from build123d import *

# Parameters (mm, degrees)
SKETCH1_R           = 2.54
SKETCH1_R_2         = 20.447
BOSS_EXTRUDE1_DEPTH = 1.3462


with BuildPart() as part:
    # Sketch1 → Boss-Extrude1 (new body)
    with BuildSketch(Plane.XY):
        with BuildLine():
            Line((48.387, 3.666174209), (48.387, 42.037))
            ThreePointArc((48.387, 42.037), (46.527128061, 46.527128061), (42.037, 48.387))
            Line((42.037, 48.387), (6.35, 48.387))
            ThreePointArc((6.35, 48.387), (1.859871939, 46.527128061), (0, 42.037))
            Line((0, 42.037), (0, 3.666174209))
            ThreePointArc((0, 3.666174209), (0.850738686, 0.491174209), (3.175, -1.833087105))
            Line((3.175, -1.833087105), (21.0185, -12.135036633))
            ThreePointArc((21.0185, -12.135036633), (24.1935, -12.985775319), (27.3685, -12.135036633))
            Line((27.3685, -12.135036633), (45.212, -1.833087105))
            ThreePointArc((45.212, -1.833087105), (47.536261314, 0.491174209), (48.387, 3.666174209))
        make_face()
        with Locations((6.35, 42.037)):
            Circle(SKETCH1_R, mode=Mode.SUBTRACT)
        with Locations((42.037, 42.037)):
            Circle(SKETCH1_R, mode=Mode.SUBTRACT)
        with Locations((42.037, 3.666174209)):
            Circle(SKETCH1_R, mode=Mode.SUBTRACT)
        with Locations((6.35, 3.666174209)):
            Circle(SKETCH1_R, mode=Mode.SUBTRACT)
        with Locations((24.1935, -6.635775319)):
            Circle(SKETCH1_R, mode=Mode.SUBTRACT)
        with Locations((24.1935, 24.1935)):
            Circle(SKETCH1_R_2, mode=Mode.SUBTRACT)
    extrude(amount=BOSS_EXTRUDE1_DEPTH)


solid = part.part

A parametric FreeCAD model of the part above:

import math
import FreeCAD as App
import Part
import Sketcher

V = App.Vector
Q = App.Units.Quantity

doc = App.newDocument("Part")
body = doc.addObject("PartDesign::Body", "Body")

# Sketch on XY plane
sketch1 = doc.addObject("Sketcher::SketchObject", "Sketch")
body.addObject(sketch1)
sketch1.AttachmentSupport = (doc.XY_Plane, [""])
sketch1.MapMode = "FlatFace"
sketch1.addGeometry(Part.LineSegment(V(48.387, 3.666174, 0), V(48.387, 42.037, 0)), False)
sketch1.addGeometry(Part.ArcOfCircle(Part.Circle(V(42.037, 42.037, 0), V(0, 0, 1), 6.35), math.radians(0), math.radians(90)), False)
sketch1.addGeometry(Part.LineSegment(V(42.037, 48.387, 0), V(6.35, 48.387, 0)), False)
sketch1.addGeometry(Part.ArcOfCircle(Part.Circle(V(6.35, 42.037, 0), V(0, 0, 1), 6.35), math.radians(90), math.radians(180)), False)
sketch1.addGeometry(Part.LineSegment(V(0, 42.037, 0), V(0, 3.666174, 0)), False)
sketch1.addGeometry(Part.ArcOfCircle(Part.Circle(V(6.35, 3.666174, 0), V(0, 0, 1), 6.35), math.radians(180), math.radians(240)), False)
sketch1.addGeometry(Part.LineSegment(V(3.175, -1.833087, 0), V(21.0185, -12.135037, 0)), False)
sketch1.addGeometry(Part.ArcOfCircle(Part.Circle(V(24.1935, -6.635775, 0), V(0, 0, 1), 6.35), math.radians(-120), math.radians(-60)), False)
sketch1.addGeometry(Part.LineSegment(V(27.3685, -12.135037, 0), V(45.212, -1.833087, 0)), False)
sketch1.addGeometry(Part.ArcOfCircle(Part.Circle(V(42.037, 3.666174, 0), V(0, 0, 1), 6.35), math.radians(-60), math.radians(0)), False)
sketch1.addGeometry(Part.Circle(V(6.35, 3.666174, 0), V(0, 0, 1), 2.54), False)
sketch1.addGeometry(Part.Circle(V(24.1935, -6.635775, 0), V(0, 0, 1), 2.54), False)
sketch1.addGeometry(Part.Circle(V(42.037, 3.666174, 0), V(0, 0, 1), 2.54), False)
sketch1.addGeometry(Part.Circle(V(6.35, 42.037, 0), V(0, 0, 1), 2.54), False)
sketch1.addGeometry(Part.Circle(V(24.1935, 24.1935, 0), V(0, 0, 1), 20.447), False)
sketch1.addGeometry(Part.Circle(V(42.037, 42.037, 0), V(0, 0, 1), 2.54), False)
sketch1.addConstraint(Sketcher.Constraint("Tangent", 0, 2, 1, 1))
sketch1.addConstraint(Sketcher.Constraint("Tangent", 1, 2, 2, 1))
sketch1.addConstraint(Sketcher.Constraint("Tangent", 2, 2, 3, 1))
sketch1.addConstraint(Sketcher.Constraint("Tangent", 3, 2, 4, 1))
sketch1.addConstraint(Sketcher.Constraint("Tangent", 4, 2, 5, 1))
sketch1.addConstraint(Sketcher.Constraint("Tangent", 5, 2, 6, 1))
sketch1.addConstraint(Sketcher.Constraint("Tangent", 6, 2, 7, 1))
sketch1.addConstraint(Sketcher.Constraint("Tangent", 7, 2, 8, 1))
sketch1.addConstraint(Sketcher.Constraint("Tangent", 8, 2, 9, 1))
sketch1.addConstraint(Sketcher.Constraint("Tangent", 9, 2, 0, 1))
sketch1.addConstraint(Sketcher.Constraint("Vertical", 0))
sketch1.addConstraint(Sketcher.Constraint("Horizontal", 2))
sketch1.addConstraint(Sketcher.Constraint("Vertical", 4))
sketch1.addConstraint(Sketcher.Constraint("Coincident", 10, 3, 5, 3))
sketch1.addConstraint(Sketcher.Constraint("Coincident", 11, 3, 7, 3))
sketch1.addConstraint(Sketcher.Constraint("Coincident", 12, 3, 9, 3))
sketch1.addConstraint(Sketcher.Constraint("Coincident", 13, 3, 3, 3))
sketch1.addConstraint(Sketcher.Constraint("Coincident", 15, 3, 1, 3))
sketch1.addConstraint(Sketcher.Constraint("Equal", 1, 3))
sketch1.addConstraint(Sketcher.Constraint("Equal", 3, 5))
sketch1.addConstraint(Sketcher.Constraint("Equal", 5, 7))
sketch1.addConstraint(Sketcher.Constraint("Equal", 7, 9))
sketch1.addConstraint(Sketcher.Constraint("Equal", 10, 11))
sketch1.addConstraint(Sketcher.Constraint("Equal", 11, 12))
sketch1.addConstraint(Sketcher.Constraint("Equal", 12, 13))
sketch1.addConstraint(Sketcher.Constraint("Equal", 13, 15))
sketch1.addConstraint(Sketcher.Constraint("PointOnObject", 3, 2, -2))
sketch1.addConstraint(Sketcher.Constraint("Horizontal", 5, 3, 9, 3))
sketch1.addConstraint(Sketcher.Constraint("Horizontal", 6, 2, 7, 2))
sketch1.addConstraint(Sketcher.Constraint("Vertical", 11, 3, 14, 3))
sketch1.addConstraint(Sketcher.Constraint("Diameter", 10, Q("0.2 in")))
sketch1.addConstraint(Sketcher.Constraint("Diameter", 14, Q("1.61 in")))
sketch1.addConstraint(Sketcher.Constraint("Radius", 1, Q("0.25 in")))
sketch1.addConstraint(Sketcher.Constraint("Angle", 6, Q("-30 deg")))
sketch1.addConstraint(Sketcher.Constraint("DistanceX", 2, 2, 2, 1, Q("1.405 in")))
sketch1.addConstraint(Sketcher.Constraint("DistanceY", -1, 1, 1, 3, Q("1.655 in")))
sketch1.addConstraint(Sketcher.Constraint("DistanceY", -1, 1, 14, 3, Q("0.9525 in")))
sketch1.addConstraint(Sketcher.Constraint("DistanceY", 0, 1, 0, 2, Q("38.370826 mm")))
pad1 = doc.addObject("PartDesign::Pad", "Pad")
body.addObject(pad1)
pad1.Profile = sketch1
pad1.Length = Q("0.053 in")

doc.recompute()
